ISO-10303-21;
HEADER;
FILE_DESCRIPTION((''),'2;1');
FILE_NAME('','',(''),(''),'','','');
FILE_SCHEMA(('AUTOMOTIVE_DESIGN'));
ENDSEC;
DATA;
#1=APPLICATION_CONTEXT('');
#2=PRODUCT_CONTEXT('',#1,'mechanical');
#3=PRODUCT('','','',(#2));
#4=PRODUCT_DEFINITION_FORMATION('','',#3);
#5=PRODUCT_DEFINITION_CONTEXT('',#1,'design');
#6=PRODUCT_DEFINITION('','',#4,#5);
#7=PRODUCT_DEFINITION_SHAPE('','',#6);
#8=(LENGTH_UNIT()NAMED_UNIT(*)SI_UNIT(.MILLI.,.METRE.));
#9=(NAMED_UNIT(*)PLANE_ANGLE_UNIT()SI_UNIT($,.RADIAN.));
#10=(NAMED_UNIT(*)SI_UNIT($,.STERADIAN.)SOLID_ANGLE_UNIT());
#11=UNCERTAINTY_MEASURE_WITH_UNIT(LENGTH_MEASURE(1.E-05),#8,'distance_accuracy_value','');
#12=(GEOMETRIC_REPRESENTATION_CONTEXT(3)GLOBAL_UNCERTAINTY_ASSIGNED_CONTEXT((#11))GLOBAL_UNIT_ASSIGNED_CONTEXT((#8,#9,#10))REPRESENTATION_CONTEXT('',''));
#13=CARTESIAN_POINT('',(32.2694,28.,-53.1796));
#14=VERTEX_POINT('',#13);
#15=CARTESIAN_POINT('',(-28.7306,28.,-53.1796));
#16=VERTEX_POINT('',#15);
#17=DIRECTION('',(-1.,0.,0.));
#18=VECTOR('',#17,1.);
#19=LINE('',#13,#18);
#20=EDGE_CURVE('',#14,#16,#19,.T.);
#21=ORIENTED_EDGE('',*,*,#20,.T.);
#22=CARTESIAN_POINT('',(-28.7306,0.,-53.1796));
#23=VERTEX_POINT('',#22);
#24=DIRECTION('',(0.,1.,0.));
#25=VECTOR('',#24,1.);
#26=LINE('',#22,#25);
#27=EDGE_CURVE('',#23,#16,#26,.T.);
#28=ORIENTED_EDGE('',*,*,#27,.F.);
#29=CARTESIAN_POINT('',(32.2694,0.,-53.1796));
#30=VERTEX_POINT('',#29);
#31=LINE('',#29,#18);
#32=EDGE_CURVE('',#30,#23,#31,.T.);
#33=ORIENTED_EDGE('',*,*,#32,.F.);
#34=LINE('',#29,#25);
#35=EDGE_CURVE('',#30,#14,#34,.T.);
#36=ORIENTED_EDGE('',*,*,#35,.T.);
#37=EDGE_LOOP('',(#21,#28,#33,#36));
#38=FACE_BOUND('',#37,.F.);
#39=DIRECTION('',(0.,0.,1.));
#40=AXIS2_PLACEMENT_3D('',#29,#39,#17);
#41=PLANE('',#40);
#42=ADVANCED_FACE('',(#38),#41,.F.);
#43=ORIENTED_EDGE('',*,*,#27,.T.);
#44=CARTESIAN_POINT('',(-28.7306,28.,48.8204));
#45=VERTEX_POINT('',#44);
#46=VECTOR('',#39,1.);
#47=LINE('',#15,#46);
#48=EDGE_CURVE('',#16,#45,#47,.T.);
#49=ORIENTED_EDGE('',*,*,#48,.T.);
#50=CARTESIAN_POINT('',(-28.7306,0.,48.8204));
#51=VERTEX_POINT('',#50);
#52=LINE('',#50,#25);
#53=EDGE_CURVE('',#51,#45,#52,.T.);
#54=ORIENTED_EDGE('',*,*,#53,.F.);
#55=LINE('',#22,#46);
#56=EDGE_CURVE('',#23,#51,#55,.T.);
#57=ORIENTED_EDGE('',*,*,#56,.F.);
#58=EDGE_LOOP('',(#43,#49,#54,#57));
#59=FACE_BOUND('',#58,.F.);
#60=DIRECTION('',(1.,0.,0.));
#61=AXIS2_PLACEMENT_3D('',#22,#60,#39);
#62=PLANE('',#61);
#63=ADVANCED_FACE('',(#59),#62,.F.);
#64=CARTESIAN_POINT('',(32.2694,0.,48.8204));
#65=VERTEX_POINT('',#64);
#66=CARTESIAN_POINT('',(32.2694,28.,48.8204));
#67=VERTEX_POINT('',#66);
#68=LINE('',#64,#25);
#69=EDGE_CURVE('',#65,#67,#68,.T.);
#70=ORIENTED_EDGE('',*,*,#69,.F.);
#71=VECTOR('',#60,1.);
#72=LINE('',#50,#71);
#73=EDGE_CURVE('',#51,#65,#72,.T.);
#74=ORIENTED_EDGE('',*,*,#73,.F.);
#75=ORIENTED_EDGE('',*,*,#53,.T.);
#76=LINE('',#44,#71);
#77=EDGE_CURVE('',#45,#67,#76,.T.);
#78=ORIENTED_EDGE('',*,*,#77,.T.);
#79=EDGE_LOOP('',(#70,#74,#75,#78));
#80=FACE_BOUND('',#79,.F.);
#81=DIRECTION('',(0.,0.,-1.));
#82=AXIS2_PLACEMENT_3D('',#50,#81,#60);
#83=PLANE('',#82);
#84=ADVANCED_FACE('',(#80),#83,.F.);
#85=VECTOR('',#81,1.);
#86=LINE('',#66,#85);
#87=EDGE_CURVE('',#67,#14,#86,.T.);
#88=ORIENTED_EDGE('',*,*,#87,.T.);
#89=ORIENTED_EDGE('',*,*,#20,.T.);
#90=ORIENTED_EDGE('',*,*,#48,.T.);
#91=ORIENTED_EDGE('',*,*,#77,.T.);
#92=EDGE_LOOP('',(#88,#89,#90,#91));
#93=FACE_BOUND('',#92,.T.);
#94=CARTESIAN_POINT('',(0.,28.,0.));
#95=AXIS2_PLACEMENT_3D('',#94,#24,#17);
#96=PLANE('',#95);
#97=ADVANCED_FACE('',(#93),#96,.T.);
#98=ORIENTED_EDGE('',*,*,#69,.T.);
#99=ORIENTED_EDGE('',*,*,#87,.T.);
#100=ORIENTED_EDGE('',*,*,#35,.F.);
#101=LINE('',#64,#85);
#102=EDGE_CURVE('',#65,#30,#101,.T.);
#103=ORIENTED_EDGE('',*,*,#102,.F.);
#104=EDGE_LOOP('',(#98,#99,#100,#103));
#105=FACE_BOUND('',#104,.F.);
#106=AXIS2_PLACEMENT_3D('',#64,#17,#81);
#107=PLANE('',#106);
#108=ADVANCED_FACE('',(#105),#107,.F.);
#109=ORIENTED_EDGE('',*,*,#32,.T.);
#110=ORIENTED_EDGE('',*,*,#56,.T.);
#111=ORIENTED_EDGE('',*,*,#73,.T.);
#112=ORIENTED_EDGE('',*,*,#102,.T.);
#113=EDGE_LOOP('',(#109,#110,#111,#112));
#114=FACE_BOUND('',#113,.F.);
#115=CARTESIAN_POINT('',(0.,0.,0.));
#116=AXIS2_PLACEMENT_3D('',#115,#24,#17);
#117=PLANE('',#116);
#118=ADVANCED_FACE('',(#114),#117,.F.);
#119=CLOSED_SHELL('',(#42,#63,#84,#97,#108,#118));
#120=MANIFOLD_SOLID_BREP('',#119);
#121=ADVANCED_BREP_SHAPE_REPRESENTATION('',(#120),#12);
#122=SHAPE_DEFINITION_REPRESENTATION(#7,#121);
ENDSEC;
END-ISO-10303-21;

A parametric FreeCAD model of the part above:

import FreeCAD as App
import Part
import Sketcher

V = App.Vector

doc = App.newDocument("Part")
body = doc.addObject("PartDesign::Body", "Body")

# Sketch on XZ plane
sketch1 = doc.addObject("Sketcher::SketchObject", "Sketch")
body.addObject(sketch1)
sketch1.AttachmentSupport = (doc.XZ_Plane, [""])
sketch1.MapMode = "FlatFace"
sketch1.addGeometry([
    Part.LineSegment(V(-29, -53, 0), V(-29, 49, 0)),
    Part.LineSegment(V(-29, 49, 0), V(32, 49, 0)),
    Part.LineSegment(V(32, 49, 0), V(32, -53, 0)),
    Part.LineSegment(V(32, -53, 0), V(-29, -53, 0)),
], False)
sketch1.addConstraint([
    Sketcher.Constraint("Coincident", 0, 2, 1, 1),
    Sketcher.Constraint("Coincident", 1, 2, 2, 1),
    Sketcher.Constraint("Coincident", 2, 2, 3, 1),
    Sketcher.Constraint("Coincident", 3, 2, 0, 1),
    Sketcher.Constraint("Vertical", 0),
    Sketcher.Constraint("Horizontal", 1),
    Sketcher.Constraint("Vertical", 2),
    Sketcher.Constraint("Horizontal", 3),
    Sketcher.Constraint("DistanceX", 1, 1, 1, 2, 61.0),
    Sketcher.Constraint("DistanceY", 0, 1, 0, 2, 102.0),
    Sketcher.Constraint("DistanceX", 0, 2, -1, 1, 28.7306),
    Sketcher.Constraint("DistanceY", -1, 1, 0, 2, 48.8204),
])
pad1 = doc.addObject("PartDesign::Pad", "Pad")
body.addObject(pad1)
pad1.Profile = sketch1
pad1.Length = 28
pad1.Reversed = True

doc.recompute()
